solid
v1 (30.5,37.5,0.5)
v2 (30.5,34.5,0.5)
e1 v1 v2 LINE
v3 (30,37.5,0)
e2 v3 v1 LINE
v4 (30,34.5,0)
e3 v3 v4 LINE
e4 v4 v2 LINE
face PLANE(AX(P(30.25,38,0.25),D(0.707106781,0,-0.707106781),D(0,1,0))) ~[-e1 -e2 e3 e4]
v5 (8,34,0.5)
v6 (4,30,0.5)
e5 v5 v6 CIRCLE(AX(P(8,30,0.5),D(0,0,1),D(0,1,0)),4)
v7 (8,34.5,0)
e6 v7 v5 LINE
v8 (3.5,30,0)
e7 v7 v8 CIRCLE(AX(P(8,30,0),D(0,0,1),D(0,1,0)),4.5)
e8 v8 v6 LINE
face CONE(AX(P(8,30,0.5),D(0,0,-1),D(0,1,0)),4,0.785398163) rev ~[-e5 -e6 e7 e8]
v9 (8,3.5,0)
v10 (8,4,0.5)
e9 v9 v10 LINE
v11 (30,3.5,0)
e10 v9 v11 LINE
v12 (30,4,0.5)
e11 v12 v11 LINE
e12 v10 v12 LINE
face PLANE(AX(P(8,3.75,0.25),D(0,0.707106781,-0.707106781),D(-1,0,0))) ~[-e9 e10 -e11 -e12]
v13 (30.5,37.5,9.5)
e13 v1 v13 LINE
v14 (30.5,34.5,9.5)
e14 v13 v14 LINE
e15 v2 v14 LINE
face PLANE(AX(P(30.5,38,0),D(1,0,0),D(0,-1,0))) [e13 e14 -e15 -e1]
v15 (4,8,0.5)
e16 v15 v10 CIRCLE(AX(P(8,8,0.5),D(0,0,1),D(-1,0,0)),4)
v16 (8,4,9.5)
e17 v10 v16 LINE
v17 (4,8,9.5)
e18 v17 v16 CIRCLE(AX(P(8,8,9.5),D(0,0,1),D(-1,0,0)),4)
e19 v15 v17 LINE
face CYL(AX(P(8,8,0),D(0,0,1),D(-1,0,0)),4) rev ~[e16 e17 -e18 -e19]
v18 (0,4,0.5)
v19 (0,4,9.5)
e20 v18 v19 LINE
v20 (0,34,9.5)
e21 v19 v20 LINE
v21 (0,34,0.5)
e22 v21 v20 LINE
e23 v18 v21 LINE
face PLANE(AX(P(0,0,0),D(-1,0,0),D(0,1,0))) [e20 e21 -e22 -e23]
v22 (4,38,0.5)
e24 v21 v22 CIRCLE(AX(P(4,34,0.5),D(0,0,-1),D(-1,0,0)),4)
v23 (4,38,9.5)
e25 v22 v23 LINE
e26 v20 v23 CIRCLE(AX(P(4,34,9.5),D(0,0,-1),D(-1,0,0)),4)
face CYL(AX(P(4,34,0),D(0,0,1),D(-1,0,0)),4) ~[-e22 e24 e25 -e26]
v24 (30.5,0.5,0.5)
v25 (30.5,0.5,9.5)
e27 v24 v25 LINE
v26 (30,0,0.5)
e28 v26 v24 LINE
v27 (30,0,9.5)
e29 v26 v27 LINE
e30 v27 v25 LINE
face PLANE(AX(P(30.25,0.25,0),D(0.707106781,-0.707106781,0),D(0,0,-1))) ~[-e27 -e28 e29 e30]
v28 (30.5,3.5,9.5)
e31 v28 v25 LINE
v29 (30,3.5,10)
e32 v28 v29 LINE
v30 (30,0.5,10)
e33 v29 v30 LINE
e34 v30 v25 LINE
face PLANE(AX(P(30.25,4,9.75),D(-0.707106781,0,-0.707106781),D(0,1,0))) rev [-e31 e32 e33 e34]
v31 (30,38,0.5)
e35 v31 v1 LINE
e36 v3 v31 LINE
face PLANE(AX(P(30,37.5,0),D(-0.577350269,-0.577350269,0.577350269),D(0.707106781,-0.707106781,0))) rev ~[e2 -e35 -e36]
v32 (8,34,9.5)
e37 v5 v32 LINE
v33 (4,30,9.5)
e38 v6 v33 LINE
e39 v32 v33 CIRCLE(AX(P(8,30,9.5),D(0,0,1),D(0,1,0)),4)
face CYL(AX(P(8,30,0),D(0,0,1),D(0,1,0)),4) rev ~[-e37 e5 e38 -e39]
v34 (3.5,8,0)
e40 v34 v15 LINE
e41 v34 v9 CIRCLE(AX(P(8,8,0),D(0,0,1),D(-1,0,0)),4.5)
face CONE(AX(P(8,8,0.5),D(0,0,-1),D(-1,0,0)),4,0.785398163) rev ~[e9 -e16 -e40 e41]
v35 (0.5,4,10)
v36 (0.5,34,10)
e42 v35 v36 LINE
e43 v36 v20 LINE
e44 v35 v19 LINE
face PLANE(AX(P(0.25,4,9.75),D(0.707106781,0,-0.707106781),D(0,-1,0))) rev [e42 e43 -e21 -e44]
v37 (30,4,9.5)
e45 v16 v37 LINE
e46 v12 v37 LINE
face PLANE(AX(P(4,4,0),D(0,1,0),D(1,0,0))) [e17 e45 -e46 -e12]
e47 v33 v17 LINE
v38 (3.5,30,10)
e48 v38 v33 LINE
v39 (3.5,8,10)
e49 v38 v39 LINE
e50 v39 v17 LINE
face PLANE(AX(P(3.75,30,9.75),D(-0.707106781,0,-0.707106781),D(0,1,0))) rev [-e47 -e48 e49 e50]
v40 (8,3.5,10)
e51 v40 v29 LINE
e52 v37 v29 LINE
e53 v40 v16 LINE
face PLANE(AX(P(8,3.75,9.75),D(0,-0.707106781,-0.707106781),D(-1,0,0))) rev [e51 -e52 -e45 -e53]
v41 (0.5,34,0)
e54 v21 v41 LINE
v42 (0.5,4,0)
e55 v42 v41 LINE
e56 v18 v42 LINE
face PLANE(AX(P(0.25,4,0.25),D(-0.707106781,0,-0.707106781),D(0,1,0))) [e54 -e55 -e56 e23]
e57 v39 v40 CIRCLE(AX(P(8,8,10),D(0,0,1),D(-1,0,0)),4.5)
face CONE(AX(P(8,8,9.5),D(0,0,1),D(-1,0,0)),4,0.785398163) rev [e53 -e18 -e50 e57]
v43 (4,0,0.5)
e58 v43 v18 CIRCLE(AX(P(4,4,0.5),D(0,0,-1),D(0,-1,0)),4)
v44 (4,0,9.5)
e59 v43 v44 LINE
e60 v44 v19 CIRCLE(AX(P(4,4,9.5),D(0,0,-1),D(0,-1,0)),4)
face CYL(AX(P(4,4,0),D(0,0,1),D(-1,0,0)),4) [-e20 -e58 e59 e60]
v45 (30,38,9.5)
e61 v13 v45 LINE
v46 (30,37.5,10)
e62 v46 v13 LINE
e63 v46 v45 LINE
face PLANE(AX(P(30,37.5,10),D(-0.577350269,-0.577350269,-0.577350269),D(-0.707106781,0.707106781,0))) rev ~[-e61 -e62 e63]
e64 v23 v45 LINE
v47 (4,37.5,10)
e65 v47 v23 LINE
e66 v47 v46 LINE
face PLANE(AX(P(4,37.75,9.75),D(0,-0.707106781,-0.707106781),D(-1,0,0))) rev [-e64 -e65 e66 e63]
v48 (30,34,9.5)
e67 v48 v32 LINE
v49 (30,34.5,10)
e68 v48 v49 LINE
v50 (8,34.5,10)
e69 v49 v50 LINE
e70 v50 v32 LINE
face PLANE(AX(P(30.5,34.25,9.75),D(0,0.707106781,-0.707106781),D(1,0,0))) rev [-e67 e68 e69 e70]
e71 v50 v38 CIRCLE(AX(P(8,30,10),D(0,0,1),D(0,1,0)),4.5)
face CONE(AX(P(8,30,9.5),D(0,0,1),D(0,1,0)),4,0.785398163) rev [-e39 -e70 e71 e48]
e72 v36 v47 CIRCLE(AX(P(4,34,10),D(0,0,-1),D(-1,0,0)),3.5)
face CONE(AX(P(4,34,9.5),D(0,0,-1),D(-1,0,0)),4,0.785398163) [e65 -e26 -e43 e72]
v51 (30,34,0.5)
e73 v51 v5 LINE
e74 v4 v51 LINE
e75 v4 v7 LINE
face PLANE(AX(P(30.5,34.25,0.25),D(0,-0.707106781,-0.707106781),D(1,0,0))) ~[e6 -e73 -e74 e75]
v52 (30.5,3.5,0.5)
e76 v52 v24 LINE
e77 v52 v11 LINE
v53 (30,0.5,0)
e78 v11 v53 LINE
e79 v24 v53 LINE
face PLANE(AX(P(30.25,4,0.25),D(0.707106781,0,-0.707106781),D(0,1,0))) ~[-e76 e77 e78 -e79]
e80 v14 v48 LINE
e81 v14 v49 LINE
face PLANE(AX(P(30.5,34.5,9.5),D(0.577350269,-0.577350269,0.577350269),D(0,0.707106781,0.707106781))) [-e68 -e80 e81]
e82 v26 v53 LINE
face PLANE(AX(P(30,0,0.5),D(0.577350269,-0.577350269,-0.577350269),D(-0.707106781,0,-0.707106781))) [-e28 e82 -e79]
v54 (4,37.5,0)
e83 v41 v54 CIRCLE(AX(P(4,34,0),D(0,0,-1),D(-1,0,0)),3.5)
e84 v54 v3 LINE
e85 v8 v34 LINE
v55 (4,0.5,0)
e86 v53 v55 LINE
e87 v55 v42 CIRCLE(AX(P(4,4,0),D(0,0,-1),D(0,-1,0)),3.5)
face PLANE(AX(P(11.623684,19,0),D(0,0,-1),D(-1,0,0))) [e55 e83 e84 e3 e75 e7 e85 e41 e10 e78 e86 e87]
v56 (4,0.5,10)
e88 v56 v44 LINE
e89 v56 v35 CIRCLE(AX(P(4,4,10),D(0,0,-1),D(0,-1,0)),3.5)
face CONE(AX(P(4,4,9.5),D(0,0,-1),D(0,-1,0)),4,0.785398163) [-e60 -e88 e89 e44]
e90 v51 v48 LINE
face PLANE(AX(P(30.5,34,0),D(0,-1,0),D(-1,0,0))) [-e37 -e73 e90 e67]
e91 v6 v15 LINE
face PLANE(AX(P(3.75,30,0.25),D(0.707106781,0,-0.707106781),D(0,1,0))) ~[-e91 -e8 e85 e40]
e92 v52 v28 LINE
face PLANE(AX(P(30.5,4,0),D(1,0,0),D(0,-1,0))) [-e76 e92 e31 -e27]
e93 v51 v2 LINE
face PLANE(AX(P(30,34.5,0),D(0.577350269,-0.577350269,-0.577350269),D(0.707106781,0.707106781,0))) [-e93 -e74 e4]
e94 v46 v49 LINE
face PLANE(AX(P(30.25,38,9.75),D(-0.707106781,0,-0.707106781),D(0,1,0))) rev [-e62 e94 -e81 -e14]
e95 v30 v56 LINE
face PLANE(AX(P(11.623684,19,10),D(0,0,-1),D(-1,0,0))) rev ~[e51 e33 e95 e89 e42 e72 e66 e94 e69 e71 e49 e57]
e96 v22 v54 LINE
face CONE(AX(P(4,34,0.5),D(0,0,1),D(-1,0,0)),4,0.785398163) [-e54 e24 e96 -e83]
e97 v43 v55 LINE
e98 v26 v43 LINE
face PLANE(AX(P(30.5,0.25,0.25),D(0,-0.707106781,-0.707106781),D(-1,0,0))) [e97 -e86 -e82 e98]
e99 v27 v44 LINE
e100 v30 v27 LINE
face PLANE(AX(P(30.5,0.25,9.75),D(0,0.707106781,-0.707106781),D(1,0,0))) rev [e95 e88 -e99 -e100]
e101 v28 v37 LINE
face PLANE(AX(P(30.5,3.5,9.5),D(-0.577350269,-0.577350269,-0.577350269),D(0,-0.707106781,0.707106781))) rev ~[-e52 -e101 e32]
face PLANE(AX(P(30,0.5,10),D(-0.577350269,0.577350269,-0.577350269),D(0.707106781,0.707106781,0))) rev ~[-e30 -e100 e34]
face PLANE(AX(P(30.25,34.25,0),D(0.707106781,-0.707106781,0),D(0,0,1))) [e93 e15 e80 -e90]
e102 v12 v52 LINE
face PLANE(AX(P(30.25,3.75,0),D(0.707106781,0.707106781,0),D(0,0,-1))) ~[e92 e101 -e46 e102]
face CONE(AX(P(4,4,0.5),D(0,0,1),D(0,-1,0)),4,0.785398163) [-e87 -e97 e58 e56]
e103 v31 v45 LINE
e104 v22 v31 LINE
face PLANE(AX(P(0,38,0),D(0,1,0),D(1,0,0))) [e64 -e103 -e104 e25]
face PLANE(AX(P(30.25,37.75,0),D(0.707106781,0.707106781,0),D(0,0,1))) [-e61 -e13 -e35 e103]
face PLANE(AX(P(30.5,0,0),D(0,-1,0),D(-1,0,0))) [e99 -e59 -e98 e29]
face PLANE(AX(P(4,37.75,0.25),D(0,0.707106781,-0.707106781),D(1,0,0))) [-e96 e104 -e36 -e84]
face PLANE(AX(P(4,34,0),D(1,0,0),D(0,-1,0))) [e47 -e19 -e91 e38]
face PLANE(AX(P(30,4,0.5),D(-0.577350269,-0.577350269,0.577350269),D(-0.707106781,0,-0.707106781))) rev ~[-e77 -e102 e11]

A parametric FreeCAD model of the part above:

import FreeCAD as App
import Part
import Sketcher
from FreeCAD import Vector
Q = App.Units.Quantity


def edges_at(feature, points):
    """Names of the edges that pass closest to the given points."""
    edges = feature.Shape.Edges
    near = lambda p: min(range(len(edges)), key=lambda i: edges[i].distToShape(Part.Vertex(*p))[0])
    return sorted({f"Edge{near(p) + 1}" for p in points})

doc = App.newDocument("Part")
params = doc.addObject("Spreadsheet::Sheet", "Params")
for row, (alias, value) in enumerate([
    ("sketch1_height", "38 mm"),
    ("sketch1_height2", "4 mm"),
    ("sketch1_width", "30.5 mm"),
    ("sketch1_width2", "26.5 mm"),
    ("pad1_length", "10 mm"),
    ("fillet_radius", "4 mm"),
    ("chamfer_size", "0.5 mm"),
], start=1):
    params.set(f"A{row}", alias)
    params.set(f"B{row}", "=" + value)
    params.setAlias(f"B{row}", alias)

body = doc.addObject("PartDesign::Body", "Body")

# Sketch on XY plane
sketch1 = doc.addObject("Sketcher::SketchObject", "Sketch")
body.addObject(sketch1)
sketch1.AttachmentSupport = (doc.XY_Plane, [""])
sketch1.MapMode = "FlatFace"
sketch1.addGeometry(Part.LineSegment(Vector(0, 38, 0), Vector(0, 0, 0)), False)
sketch1.addGeometry(Part.LineSegment(Vector(0, 0, 0), Vector(30.5, 0, 0)), False)
sketch1.addGeometry(Part.LineSegment(Vector(30.5, 0, 0), Vector(30.5, 4, 0)), False)
sketch1.addGeometry(Part.LineSegment(Vector(30.5, 4, 0), Vector(4, 4, 0)), False)
sketch1.addGeometry(Part.LineSegment(Vector(4, 4, 0), Vector(4, 34, 0)), False)
sketch1.addGeometry(Part.LineSegment(Vector(4, 34, 0), Vector(30.5, 34, 0)), False)
sketch1.addGeometry(Part.LineSegment(Vector(30.5, 34, 0), Vector(30.5, 38, 0)), False)
sketch1.addGeometry(Part.LineSegment(Vector(30.5, 38, 0), Vector(0, 38, 0)), False)
sketch1.addConstraint(Sketcher.Constraint("Coincident", 0, 2, 1, 1))
sketch1.addConstraint(Sketcher.Constraint("Coincident", 1, 2, 2, 1))
sketch1.addConstraint(Sketcher.Constraint("Coincident", 2, 2, 3, 1))
sketch1.addConstraint(Sketcher.Constraint("Coincident", 3, 2, 4, 1))
sketch1.addConstraint(Sketcher.Constraint("Coincident", 4, 2, 5, 1))
sketch1.addConstraint(Sketcher.Constraint("Coincident", 5, 2, 6, 1))
sketch1.addConstraint(Sketcher.Constraint("Coincident", 6, 2, 7, 1))
sketch1.addConstraint(Sketcher.Constraint("Coincident", 7, 2, 0, 1))
sketch1.addConstraint(Sketcher.Constraint("Vertical", 0))
sketch1.addConstraint(Sketcher.Constraint("Horizontal", 1))
sketch1.addConstraint(Sketcher.Constraint("Vertical", 2))
sketch1.addConstraint(Sketcher.Constraint("Horizontal", 3))
sketch1.addConstraint(Sketcher.Constraint("Vertical", 4))
sketch1.addConstraint(Sketcher.Constraint("Horizontal", 5))
sketch1.addConstraint(Sketcher.Constraint("Vertical", 6))
sketch1.addConstraint(Sketcher.Constraint("Horizontal", 7))
sketch1.addConstraint(Sketcher.Constraint("Coincident", 0, 2, -1, 1))
sketch1.addConstraint(Sketcher.Constraint("Vertical", 2, 2, 5, 2))
sketch1.addConstraint(Sketcher.Constraint("Equal", 2, 6))
sketch1.addConstraint(Sketcher.Constraint("DistanceY", 0, 2, 0, 1, Q("38 mm")))
sketch1.addConstraint(Sketcher.Constraint("DistanceY", 2, 1, 2, 2, Q("4 mm")))
sketch1.addConstraint(Sketcher.Constraint("DistanceX", 1, 1, 1, 2, Q("30.5 mm")))
sketch1.addConstraint(Sketcher.Constraint("DistanceX", 3, 2, 3, 1, Q("26.5 mm")))
sketch1.setExpression("Constraints[19]", "Params.sketch1_height")
sketch1.setExpression("Constraints[20]", "Params.sketch1_height2")
sketch1.setExpression("Constraints[21]", "Params.sketch1_width")
sketch1.setExpression("Constraints[22]", "Params.sketch1_width2")
pad1 = doc.addObject("PartDesign::Pad", "Pad")
body.addObject(pad1)
pad1.Profile = sketch1
pad1.setExpression("Length", "Params.pad1_length")
doc.recompute()

fillet = doc.addObject("PartDesign::Fillet", "Fillet")
body.addObject(fillet)
fillet.Base = (pad1, edges_at(pad1, [
    (0, 0, 5),
    (0, 38, 5),
    (4, 34, 5),
    (4, 4, 5),
]))
fillet.setExpression("Radius", "Params.fillet_radius")
doc.recompute()

chamfer = doc.addObject("PartDesign::Chamfer", "Chamfer")
body.addObject(chamfer)
chamfer.Base = (fillet, ["Edge1"])
chamfer.UseAllEdges = True
chamfer.setExpression("Size", "Params.chamfer_size")

doc.recompute()
